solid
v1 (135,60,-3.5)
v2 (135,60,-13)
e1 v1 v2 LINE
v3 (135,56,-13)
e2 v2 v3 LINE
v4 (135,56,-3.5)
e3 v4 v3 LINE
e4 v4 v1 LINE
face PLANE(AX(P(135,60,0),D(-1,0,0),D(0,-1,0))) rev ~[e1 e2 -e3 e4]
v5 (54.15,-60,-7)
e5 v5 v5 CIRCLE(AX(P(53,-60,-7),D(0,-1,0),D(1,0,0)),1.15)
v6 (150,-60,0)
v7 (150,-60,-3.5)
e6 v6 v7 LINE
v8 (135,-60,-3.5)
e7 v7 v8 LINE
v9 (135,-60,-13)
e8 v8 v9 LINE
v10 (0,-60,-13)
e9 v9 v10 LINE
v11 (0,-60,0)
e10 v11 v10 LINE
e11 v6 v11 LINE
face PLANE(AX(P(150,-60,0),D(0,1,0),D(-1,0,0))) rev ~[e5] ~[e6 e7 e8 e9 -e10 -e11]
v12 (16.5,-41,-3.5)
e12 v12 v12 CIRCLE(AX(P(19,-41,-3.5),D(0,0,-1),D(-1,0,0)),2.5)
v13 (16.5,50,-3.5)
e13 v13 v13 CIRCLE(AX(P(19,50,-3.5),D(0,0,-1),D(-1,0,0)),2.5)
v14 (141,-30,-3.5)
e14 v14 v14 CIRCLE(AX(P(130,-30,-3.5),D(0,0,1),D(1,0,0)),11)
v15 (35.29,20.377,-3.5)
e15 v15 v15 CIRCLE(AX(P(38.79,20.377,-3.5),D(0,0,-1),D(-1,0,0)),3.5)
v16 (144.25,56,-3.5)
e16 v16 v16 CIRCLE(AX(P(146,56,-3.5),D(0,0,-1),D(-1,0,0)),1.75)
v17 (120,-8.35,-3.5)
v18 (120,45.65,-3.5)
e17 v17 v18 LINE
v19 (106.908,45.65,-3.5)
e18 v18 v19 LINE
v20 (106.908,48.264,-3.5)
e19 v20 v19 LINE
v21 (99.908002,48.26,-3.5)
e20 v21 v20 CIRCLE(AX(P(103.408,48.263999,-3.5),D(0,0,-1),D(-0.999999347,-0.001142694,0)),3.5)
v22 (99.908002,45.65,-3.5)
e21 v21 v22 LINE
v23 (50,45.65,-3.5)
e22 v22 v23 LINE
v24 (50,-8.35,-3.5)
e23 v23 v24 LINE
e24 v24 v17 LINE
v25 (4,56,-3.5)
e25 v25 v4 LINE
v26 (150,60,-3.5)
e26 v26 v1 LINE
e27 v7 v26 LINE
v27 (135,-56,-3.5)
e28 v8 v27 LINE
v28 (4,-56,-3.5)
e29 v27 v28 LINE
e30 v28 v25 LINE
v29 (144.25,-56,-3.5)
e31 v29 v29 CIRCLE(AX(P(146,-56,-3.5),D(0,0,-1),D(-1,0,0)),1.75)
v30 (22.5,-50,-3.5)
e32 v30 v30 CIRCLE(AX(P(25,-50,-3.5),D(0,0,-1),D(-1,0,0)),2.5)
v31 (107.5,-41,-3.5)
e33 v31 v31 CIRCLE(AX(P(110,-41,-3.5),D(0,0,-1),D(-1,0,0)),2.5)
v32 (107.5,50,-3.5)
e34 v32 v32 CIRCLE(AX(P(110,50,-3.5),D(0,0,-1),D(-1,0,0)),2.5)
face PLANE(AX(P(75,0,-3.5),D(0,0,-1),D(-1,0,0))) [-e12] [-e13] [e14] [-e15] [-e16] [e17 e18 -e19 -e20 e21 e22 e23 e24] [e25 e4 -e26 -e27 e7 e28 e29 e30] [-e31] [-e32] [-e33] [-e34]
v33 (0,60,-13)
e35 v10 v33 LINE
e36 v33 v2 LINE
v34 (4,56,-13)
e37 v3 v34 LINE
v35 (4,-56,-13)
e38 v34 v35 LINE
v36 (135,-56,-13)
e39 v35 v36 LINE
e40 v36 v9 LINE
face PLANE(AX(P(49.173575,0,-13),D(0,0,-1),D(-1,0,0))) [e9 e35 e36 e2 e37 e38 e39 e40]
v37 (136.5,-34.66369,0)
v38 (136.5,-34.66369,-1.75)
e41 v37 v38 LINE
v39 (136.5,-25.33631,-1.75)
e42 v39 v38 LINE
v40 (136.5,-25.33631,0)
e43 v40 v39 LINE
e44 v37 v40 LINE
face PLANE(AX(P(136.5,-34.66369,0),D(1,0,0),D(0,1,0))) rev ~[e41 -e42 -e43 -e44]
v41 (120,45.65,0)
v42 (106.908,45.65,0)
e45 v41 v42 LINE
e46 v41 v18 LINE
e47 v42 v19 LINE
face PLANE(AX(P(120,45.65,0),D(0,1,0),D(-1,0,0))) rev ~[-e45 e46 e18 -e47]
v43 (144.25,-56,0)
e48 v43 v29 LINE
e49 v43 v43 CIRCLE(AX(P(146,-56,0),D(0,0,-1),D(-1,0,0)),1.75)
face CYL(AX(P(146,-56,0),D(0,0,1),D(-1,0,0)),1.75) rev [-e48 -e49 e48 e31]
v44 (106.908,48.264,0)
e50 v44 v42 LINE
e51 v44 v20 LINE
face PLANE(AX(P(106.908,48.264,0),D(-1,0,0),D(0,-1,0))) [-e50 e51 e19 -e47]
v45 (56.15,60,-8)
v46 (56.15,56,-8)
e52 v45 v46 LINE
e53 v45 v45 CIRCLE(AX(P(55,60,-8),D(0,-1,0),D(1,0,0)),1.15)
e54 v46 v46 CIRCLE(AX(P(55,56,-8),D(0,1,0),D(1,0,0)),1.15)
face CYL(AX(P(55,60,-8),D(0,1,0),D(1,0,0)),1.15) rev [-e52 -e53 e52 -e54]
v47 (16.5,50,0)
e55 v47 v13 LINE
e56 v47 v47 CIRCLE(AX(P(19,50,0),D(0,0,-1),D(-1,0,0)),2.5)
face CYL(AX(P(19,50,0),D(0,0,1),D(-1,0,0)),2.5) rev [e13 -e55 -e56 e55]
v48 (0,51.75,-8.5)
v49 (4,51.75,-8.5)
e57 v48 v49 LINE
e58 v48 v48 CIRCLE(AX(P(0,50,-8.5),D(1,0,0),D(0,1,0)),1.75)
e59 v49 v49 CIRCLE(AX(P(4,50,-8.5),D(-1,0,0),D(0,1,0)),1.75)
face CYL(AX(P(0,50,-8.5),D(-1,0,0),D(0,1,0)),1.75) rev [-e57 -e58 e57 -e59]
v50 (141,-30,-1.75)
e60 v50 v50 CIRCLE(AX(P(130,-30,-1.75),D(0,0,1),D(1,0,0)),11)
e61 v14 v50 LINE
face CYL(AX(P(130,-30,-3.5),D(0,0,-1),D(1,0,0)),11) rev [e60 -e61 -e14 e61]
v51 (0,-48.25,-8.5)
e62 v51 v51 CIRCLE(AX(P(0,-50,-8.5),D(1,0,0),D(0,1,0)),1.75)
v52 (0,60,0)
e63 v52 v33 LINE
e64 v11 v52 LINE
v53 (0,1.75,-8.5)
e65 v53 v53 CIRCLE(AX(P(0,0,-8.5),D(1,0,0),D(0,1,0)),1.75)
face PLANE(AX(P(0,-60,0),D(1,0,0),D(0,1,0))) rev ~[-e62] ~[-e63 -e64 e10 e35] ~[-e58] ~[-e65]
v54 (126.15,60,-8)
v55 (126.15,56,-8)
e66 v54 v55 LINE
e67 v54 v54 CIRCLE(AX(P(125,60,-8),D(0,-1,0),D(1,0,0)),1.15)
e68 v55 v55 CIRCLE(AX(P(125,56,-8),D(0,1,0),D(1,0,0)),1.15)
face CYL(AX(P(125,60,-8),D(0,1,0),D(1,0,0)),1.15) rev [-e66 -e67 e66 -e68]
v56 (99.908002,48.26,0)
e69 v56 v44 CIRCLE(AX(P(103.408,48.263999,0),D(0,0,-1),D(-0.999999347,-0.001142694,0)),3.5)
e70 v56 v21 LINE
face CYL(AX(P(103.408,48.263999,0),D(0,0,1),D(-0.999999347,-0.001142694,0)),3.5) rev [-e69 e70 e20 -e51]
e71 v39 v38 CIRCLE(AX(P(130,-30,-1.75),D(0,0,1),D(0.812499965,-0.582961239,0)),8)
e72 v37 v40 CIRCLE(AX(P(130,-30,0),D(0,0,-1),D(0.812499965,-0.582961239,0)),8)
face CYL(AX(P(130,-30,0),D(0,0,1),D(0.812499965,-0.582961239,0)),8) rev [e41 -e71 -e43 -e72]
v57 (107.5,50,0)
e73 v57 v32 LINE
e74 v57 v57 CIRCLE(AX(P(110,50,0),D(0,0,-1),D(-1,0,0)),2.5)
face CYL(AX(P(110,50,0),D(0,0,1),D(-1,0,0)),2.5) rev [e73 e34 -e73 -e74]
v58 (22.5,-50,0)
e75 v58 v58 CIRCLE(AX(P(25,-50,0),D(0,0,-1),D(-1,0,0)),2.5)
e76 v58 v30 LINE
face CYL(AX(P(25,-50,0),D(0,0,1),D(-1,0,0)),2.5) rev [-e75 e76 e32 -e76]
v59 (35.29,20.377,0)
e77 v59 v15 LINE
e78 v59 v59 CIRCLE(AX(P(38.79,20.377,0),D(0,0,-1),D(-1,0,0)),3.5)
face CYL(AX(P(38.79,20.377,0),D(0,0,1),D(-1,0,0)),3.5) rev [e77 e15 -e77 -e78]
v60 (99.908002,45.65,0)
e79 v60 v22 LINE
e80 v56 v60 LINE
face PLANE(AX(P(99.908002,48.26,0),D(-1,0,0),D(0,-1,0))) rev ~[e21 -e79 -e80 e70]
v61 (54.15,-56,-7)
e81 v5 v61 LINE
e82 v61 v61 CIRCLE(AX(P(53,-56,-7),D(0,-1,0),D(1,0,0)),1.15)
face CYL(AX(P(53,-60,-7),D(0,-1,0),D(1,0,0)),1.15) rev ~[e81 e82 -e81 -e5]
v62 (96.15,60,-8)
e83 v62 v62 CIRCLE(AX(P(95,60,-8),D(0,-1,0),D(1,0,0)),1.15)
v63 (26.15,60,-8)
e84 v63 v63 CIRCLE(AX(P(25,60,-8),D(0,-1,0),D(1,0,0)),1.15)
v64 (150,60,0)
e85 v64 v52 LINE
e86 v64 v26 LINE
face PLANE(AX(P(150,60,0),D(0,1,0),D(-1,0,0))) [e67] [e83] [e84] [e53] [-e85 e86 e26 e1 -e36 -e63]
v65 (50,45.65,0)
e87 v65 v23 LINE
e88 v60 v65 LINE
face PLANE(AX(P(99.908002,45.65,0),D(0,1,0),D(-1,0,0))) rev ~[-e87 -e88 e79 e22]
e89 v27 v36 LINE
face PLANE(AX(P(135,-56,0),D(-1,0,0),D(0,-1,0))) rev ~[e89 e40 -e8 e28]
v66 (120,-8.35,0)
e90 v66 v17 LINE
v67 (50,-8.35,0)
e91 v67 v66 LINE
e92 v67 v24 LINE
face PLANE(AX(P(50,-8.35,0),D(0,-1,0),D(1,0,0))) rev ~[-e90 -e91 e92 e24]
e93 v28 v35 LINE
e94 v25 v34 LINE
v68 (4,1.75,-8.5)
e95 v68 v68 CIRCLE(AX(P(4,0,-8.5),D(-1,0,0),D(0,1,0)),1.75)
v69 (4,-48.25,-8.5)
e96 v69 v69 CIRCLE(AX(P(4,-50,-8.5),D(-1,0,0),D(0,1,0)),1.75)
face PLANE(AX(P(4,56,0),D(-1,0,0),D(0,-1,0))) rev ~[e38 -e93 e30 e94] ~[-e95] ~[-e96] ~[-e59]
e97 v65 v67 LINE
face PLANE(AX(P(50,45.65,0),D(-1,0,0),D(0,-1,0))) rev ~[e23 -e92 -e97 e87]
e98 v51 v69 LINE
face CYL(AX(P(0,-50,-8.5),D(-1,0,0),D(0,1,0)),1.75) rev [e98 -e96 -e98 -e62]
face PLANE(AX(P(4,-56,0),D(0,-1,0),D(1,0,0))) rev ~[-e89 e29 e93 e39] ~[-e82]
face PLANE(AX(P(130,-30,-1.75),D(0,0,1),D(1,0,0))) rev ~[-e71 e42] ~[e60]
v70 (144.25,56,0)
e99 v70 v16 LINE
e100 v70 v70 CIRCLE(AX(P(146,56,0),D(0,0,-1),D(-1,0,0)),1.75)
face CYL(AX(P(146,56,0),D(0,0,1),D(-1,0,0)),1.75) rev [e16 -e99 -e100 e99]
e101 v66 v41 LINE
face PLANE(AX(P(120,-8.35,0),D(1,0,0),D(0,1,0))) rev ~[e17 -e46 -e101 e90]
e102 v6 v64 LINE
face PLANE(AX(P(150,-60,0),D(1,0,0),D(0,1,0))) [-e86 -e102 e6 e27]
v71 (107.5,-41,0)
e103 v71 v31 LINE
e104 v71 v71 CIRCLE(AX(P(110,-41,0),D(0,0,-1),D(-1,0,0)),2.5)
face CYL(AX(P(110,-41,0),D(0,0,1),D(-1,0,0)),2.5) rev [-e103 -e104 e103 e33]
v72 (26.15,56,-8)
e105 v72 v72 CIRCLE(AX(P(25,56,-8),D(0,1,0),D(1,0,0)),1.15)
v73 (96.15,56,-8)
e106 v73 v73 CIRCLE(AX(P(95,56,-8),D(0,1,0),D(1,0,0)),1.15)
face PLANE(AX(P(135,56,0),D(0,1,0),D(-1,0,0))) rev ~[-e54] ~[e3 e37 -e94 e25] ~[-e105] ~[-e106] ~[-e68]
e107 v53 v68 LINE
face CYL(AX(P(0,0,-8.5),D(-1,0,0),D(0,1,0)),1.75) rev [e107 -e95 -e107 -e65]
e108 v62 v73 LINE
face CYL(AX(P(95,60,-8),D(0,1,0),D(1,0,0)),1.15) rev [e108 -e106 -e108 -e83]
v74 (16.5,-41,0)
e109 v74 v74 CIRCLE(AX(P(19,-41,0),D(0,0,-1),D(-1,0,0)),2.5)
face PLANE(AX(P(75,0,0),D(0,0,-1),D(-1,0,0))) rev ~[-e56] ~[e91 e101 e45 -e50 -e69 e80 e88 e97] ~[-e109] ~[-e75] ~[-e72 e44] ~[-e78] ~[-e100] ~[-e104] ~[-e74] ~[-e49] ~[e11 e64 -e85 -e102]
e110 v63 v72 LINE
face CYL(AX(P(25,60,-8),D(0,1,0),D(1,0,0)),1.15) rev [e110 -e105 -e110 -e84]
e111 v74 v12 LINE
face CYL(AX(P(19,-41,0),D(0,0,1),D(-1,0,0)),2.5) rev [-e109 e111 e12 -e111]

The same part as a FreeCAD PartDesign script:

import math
import FreeCAD as App
import Part
import Sketcher


def add_polygon(sketch, points):
    """Adds a closed chain of lines whose ends are joined by coincident constraints."""
    first, n = sketch.GeometryCount, len(points)
    for a, b in zip(points, points[1:] + points[:1]):
        sketch.addGeometry(Part.LineSegment(App.Vector(*a, 0), App.Vector(*b, 0)), False)
    for i in range(n):
        sketch.addConstraint(Sketcher.Constraint("Coincident", first + i, 2, first + (i + 1) % n, 1))

doc = App.newDocument("Part")
params = doc.addObject("Spreadsheet::Sheet", "Params")
for row, (alias, value) in enumerate([
    ("sketch1_diameter", "5 mm"),
    ("sketch1_diameter2", "7 mm"),
    ("sketch1_radius", "8 mm"),
    ("sketch1_diameter3", "3.5 mm"),
    ("sketch1_width", "150 mm"),
    ("pad1_length", "3.5 mm"),
    ("sketch2_width", "135 mm"),
    ("sketch2_width2", "131 mm"),
    ("sketch2_height", "4 mm"),
    ("sketch2_height2", "120 mm"),
    ("pad2_length", "13 mm"),
    ("sketch3_diameter", "3.5 mm"),
    ("pocket1_length", "5 mm"),
    ("sketch4_diameter", "2.3 mm"),
    ("pocket2_length", "5 mm"),
    ("sketch5_diameter", "2.3 mm"),
    ("pocket3_length", "5 mm"),
    ("sketch6_diameter", "22 mm"),
    ("pocket4_length", "1.75 mm"),
], start=1):
    params.set(f"A{row}", alias)
    params.set(f"B{row}", "=" + value)
    params.setAlias(f"B{row}", alias)

body = doc.addObject("PartDesign::Body", "Body")

# Sketch on XY plane
sketch1 = body.newObject("Sketcher::SketchObject", "Sketch")
sketch1.AttachmentSupport = (doc.getObject("XY_Plane"), [""])
sketch1.MapMode = "FlatFace"
add_polygon(sketch1, [(150, 60), (150, -60), (0, -60), (0, 60)])  # lines 0-3
sketch1.addGeometry(Part.Circle(App.Vector(146, -56, 0), App.Vector(0, 0, 1), 1.8), False)  # 4
sketch1.addGeometry(Part.ArcOfCircle(Part.Circle(App.Vector(130, -30, 0), App.Vector(0, 0, 1), 8), math.radians(36), math.radians(324)), False)  # 5
sketch1.addGeometry(Part.LineSegment(App.Vector(136.5, -34.7, 0), App.Vector(136.5, -25.3, 0)), False)  # 6
sketch1.addGeometry(Part.Circle(App.Vector(110, -41, 0), App.Vector(0, 0, 1), 2.5), False)  # 7
sketch1.addGeometry(Part.Circle(App.Vector(25, -50, 0), App.Vector(0, 0, 1), 2.5), False)  # 8
sketch1.addGeometry(Part.Circle(App.Vector(19, -41, 0), App.Vector(0, 0, 1), 2.5), False)  # 9
sketch1.addGeometry(Part.LineSegment(App.Vector(50, 45.6, 0), App.Vector(50, -8.3, 0)), False)  # 10
sketch1.addGeometry(Part.LineSegment(App.Vector(50, -8.3, 0), App.Vector(120, -8.3, 0)), False)  # 11
sketch1.addGeometry(Part.LineSegment(App.Vector(120, -8.3, 0), App.Vector(120, 45.6, 0)), False)  # 12
sketch1.addGeometry(Part.LineSegment(App.Vector(120, 45.6, 0), App.Vector(106.9, 45.6, 0)), False)  # 13
sketch1.addGeometry(Part.LineSegment(App.Vector(106.9, 45.6, 0), App.Vector(106.9, 48.3, 0)), False)  # 14
sketch1.addGeometry(Part.ArcOfCircle(Part.Circle(App.Vector(103.4, 48.3, 0), App.Vector(0, 0, 1), 3.5), math.radians(0), math.radians(180)), False)  # 15
sketch1.addGeometry(Part.LineSegment(App.Vector(99.9, 48.3, 0), App.Vector(99.9, 45.6, 0)), False)  # 16
sketch1.addGeometry(Part.LineSegment(App.Vector(99.9, 45.6, 0), App.Vector(50, 45.6, 0)), False)  # 17
sketch1.addGeometry(Part.Circle(App.Vector(146, 56, 0), App.Vector(0, 0, 1), 1.8), False)  # 18
sketch1.addGeometry(Part.Circle(App.Vector(110, 50, 0), App.Vector(0, 0, 1), 2.5), False)  # 19
sketch1.addGeometry(Part.Circle(App.Vector(38.8, 20.4, 0), App.Vector(0, 0, 1), 3.5), False)  # 20
sketch1.addGeometry(Part.Circle(App.Vector(19, 50, 0), App.Vector(0, 0, 1), 2.5), False)  # 21
sketch1.addConstraint([
    Sketcher.Constraint("Coincident", 5, 1, 6, 2),
    Sketcher.Constraint("Coincident", 6, 1, 5, 2),
    Sketcher.Constraint("Coincident", 10, 2, 11, 1),
    Sketcher.Constraint("Coincident", 11, 2, 12, 1),
    Sketcher.Constraint("Coincident", 12, 2, 13, 1),
    Sketcher.Constraint("Coincident", 13, 2, 14, 1),
    Sketcher.Constraint("Tangent", 14, 2, 15, 1),
    Sketcher.Constraint("Coincident", 15, 2, 16, 1),
    Sketcher.Constraint("Coincident", 16, 2, 17, 1),
    Sketcher.Constraint("Coincident", 17, 2, 10, 1),
    Sketcher.Constraint("Vertical", 0),
    Sketcher.Constraint("Horizontal", 1),
    Sketcher.Constraint("Vertical", 2),
    Sketcher.Constraint("Horizontal", 3),
    Sketcher.Constraint("Vertical", 6),
    Sketcher.Constraint("Vertical", 10),
    Sketcher.Constraint("Horizontal", 11),
    Sketcher.Constraint("Vertical", 12),
    Sketcher.Constraint("Horizontal", 13),
    Sketcher.Constraint("Vertical", 14),
    Sketcher.Constraint("Vertical", 16),
    Sketcher.Constraint("Horizontal", 17),
    Sketcher.Constraint("Equal", 7, 8),
    Sketcher.Constraint("Equal", 8, 9),
    Sketcher.Constraint("Equal", 4, 18),
    Sketcher.Constraint("Equal", 9, 19),
    Sketcher.Constraint("Equal", 15, 20),
    Sketcher.Constraint("Equal", 19, 21),
    Sketcher.Constraint("Symmetric", 1, 2, 2, 2, -1, 1),
    Sketcher.Constraint("Symmetric", 4, 3, 18, 3, -1),
    Sketcher.Constraint("Horizontal", 7, 3, 9, 3),
    Sketcher.Constraint("Horizontal", 19, 3, 21, 3),
    Sketcher.Constraint("Horizontal", 13, 2, 16, 2),
    Sketcher.Constraint("Vertical", 7, 3, 19, 3),
    Sketcher.Constraint("Vertical", 9, 3, 21, 3),
    Sketcher.Constraint("Diameter", 7, 5.0),
    Sketcher.Constraint("Diameter", 20, 7.0),
    Sketcher.Constraint("Radius", 5, 8.0),
    Sketcher.Constraint("Diameter", 4, 3.5),
    Sketcher.Constraint("DistanceX", 1, 2, 1, 1, 150.0),
    Sketcher.Constraint("DistanceX", 11, 1, 11, 2, 70.0),
    Sketcher.Constraint("DistanceY", 0, 2, 0, 1, 120.0),
    Sketcher.Constraint("DistanceY", 10, 2, 10, 1, 54.0),
    Sketcher.Constraint("DistanceX", -1, 1, 4, 3, 146.0),
    Sketcher.Constraint("DistanceY", 4, 3, -1, 1, 56.0),
    Sketcher.Constraint("DistanceX", -1, 1, 5, 3, 130.0),
    Sketcher.Constraint("DistanceY", 5, 3, -1, 1, 30.0),
    Sketcher.Constraint("DistanceX", -1, 1, 7, 3, 110.0),
    Sketcher.Constraint("DistanceY", 7, 3, -1, 1, 41.0),
    Sketcher.Constraint("DistanceX", -1, 1, 8, 3, 25.0),
    Sketcher.Constraint("DistanceY", 8, 3, -1, 1, 50.0),
    Sketcher.Constraint("DistanceX", -1, 1, 9, 3, 19.0),
    Sketcher.Constraint("DistanceY", -1, 1, 19, 3, 50.0),
    Sketcher.Constraint("DistanceX", -1, 1, 10, 2, 50.0),
    Sketcher.Constraint("DistanceY", 16, 2, 16, 1, 2.61),
    Sketcher.Constraint("DistanceX", -1, 1, 5, 1, 136.5),
    Sketcher.Constraint("DistanceX", 13, 2, 13, 1, 13.092),
    Sketcher.Constraint("DistanceY", 14, 1, 14, 2, 2.614),
    Sketcher.Constraint("DistanceX", -1, 1, 20, 3, 38.79),
    Sketcher.Constraint("DistanceY", 10, 2, -1, 1, 8.35),
    Sketcher.Constraint("DistanceY", -1, 1, 20, 3, 20.377),
])
sketch1.setExpression("Constraints[39]", "Params.sketch1_diameter")
sketch1.setExpression("Constraints[40]", "Params.sketch1_diameter2")
sketch1.setExpression("Constraints[41]", "Params.sketch1_radius")
sketch1.setExpression("Constraints[42]", "Params.sketch1_diameter3")
sketch1.setExpression("Constraints[43]", "Params.sketch1_width")
pad1 = body.newObject("PartDesign::Pad", "Pad")
pad1.Profile = sketch1
pad1.setExpression("Length", "Params.pad1_length")
pad1.Reversed = True

# Sketch on XY plane
sketch2 = body.newObject("Sketcher::SketchObject", "Sketch001")
sketch2.AttachmentSupport = (doc.getObject("XY_Plane"), [""])
sketch2.MapMode = "FlatFace"
add_polygon(sketch2, [(135, 56), (135, 60), (0, 60), (0, -60), (135, -60), (135, -56), (4, -56), (4, 56)])  # lines 0-7
sketch2.addConstraint([
    Sketcher.Constraint("Vertical", 0),
    Sketcher.Constraint("Horizontal", 1),
    Sketcher.Constraint("Vertical", 2),
    Sketcher.Constraint("Horizontal", 3),
    Sketcher.Constraint("Vertical", 4),
    Sketcher.Constraint("Horizontal", 5),
    Sketcher.Constraint("Vertical", 6),
    Sketcher.Constraint("Horizontal", 7),
    Sketcher.Constraint("Symmetric", 1, 2, 2, 2, -1, 1),
    Sketcher.Constraint("Symmetric", 4, 2, 7, 2, -1),
    Sketcher.Constraint("DistanceX", 1, 2, 1, 1, 135.0),
    Sketcher.Constraint("DistanceX", 5, 2, 5, 1, 131.0),
    Sketcher.Constraint("DistanceY", 0, 1, 0, 2, 4.0),
    Sketcher.Constraint("DistanceY", 2, 2, 2, 1, 120.0),
])
sketch2.setExpression("Constraints[18]", "Params.sketch2_width")
sketch2.setExpression("Constraints[19]", "Params.sketch2_width2")
sketch2.setExpression("Constraints[20]", "Params.sketch2_height")
sketch2.setExpression("Constraints[21]", "Params.sketch2_height2")
pad2 = body.newObject("PartDesign::Pad", "Pad001")
pad2.Profile = sketch2
pad2.setExpression("Length", "Params.pad2_length")
pad2.Reversed = True

# Sketch on YZ plane
sketch3 = body.newObject("Sketcher::SketchObject", "Sketch002")
sketch3.AttachmentSupport = (doc.getObject("YZ_Plane"), [""])
sketch3.MapMode = "FlatFace"
sketch3.addGeometry([
    Part.Circle(App.Vector(0, -8.5, 0), App.Vector(0, 0, 1), 1.8),
    Part.Circle(App.Vector(50, -8.5, 0), App.Vector(0, 0, 1), 1.8),
    Part.Circle(App.Vector(-50, -8.5, 0), App.Vector(0, 0, 1), 1.8),
], False)
sketch3.addConstraint([
    Sketcher.Constraint("Equal", 0, 1),
    Sketcher.Constraint("Equal", 1, 2),
    Sketcher.Constraint("Symmetric", 1, 3, 2, 3, -2),
    Sketcher.Constraint("PointOnObject", 0, 3, -2),
    Sketcher.Constraint("Horizontal", 0, 3, 1, 3),
    Sketcher.Constraint("Diameter", 0, 3.5),
    Sketcher.Constraint("DistanceX", -1, 1, 1, 3, 50.0),
    Sketcher.Constraint("DistanceY", 0, 3, -1, 1, 8.5),
])
sketch3.setExpression("Constraints[5]", "Params.sketch3_diameter")
pocket1 = body.newObject("PartDesign::Pocket", "Pocket")
pocket1.Profile = sketch3
pocket1.setExpression("Length", "Params.pocket1_length")
pocket1.Reversed = True

# Sketch on XZ plane
sketch4 = body.newObject("Sketcher::SketchObject", "Sketch003")
sketch4.AttachmentSupport = (doc.getObject("XZ_Plane"), [""])
sketch4.MapMode = "FlatFace"
sketch4.AttachmentOffset = App.Placement(App.Vector(0, 0, 60), App.Rotation())
sketch4.addGeometry(Part.Circle(App.Vector(53, -7, 0), App.Vector(0, 0, 1), 1.1), False)
sketch4.addConstraint([
    Sketcher.Constraint("Diameter", 0, 2.3),
    Sketcher.Constraint("DistanceX", -1, 1, 0, 3, 53.0),
    Sketcher.Constraint("DistanceY", 0, 3, -1, 1, 7.0),
])
sketch4.setExpression("Constraints[0]", "Params.sketch4_diameter")
pocket2 = body.newObject("PartDesign::Pocket", "Pocket001")
pocket2.Profile = sketch4
pocket2.setExpression("Length", "Params.pocket2_length")

# Sketch on XZ plane
sketch5 = body.newObject("Sketcher::SketchObject", "Sketch004")
sketch5.AttachmentSupport = (doc.getObject("XZ_Plane"), [""])
sketch5.MapMode = "FlatFace"
sketch5.AttachmentOffset = App.Placement(App.Vector(0, 0, -60), App.Rotation())
sketch5.addGeometry([
    Part.Circle(App.Vector(25, -8, 0), App.Vector(0, 0, 1), 1.1),
    Part.Circle(App.Vector(125, -8, 0), App.Vector(0, 0, 1), 1.1),
    Part.Circle(App.Vector(95, -8, 0), App.Vector(0, 0, 1), 1.1),
    Part.Circle(App.Vector(55, -8, 0), App.Vector(0, 0, 1), 1.1),
], False)
sketch5.addConstraint([
    Sketcher.Constraint("Equal", 0, 1),
    Sketcher.Constraint("Equal", 1, 2),
    Sketcher.Constraint("Equal", 2, 3),
    Sketcher.Constraint("Horizontal", 0, 3, 1, 3),
    Sketcher.Constraint("Horizontal", 1, 3, 2, 3),
    Sketcher.Constraint("Horizontal", 2, 3, 3, 3),
    Sketcher.Constraint("Diameter", 0, 2.3),
    Sketcher.Constraint("DistanceX", -1, 1, 0, 3, 25.0),
    Sketcher.Constraint("DistanceY", 0, 3, -1, 1, 8.0),
    Sketcher.Constraint("DistanceX", -1, 1, 1, 3, 125.0),
    Sketcher.Constraint("DistanceX", -1, 1, 2, 3, 95.0),
    Sketcher.Constraint("DistanceX", -1, 1, 3, 3, 55.0),
])
sketch5.setExpression("Constraints[6]", "Params.sketch5_diameter")
pocket3 = body.newObject("PartDesign::Pocket", "Pocket002")
pocket3.Profile = sketch5
pocket3.setExpression("Length", "Params.pocket3_length")
pocket3.Reversed = True

# Sketch on XY plane
sketch6 = body.newObject("Sketcher::SketchObject", "Sketch005")
sketch6.AttachmentSupport = (doc.getObject("XY_Plane"), [""])
sketch6.MapMode = "FlatFace"
sketch6.AttachmentOffset = App.Placement(App.Vector(0, 0, -3.5), App.Rotation())
sketch6.addGeometry(Part.Circle(App.Vector(130, -30, 0), App.Vector(0, 0, 1), 11), False)
sketch6.addConstraint([
    Sketcher.Constraint("Diameter", 0, 22.0),
    Sketcher.Constraint("DistanceX", -1, 1, 0, 3, 130.0),
    Sketcher.Constraint("DistanceY", 0, 3, -1, 1, 30.0),
])
sketch6.setExpression("Constraints[0]", "Params.sketch6_diameter")
pocket4 = body.newObject("PartDesign::Pocket", "Pocket003")
pocket4.Profile = sketch6
pocket4.setExpression("Length", "Params.pocket4_length")
pocket4.Reversed = True

doc.recompute()
